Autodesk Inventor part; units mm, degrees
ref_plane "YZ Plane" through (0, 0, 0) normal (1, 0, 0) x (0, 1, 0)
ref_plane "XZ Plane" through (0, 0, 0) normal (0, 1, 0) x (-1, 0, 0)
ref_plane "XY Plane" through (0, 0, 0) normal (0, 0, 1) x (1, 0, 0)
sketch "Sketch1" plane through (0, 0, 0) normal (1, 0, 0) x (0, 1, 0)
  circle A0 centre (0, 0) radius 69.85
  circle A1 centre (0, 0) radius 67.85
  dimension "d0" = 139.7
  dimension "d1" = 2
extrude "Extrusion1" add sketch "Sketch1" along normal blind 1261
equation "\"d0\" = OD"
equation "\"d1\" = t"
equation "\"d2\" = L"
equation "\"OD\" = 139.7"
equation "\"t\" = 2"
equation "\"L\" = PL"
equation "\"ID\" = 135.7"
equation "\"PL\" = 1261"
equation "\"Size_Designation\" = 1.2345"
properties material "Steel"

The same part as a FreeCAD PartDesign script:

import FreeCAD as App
import Part
import Sketcher
from FreeCAD import Vector
Q = App.Units.Quantity

doc = App.newDocument("Part")
body = doc.addObject("PartDesign::Body", "Body")

sketch1 = body.newObject("Sketcher::SketchObject", "Sketch")
sketch1.AttachmentSupport = (doc.getObject("YZ_Plane"), [""])
sketch1.MapMode = "FlatFace"
sketch1.addGeometry(Part.Circle(Vector(0, 0, 0), Vector(0, 0, 1), 70), False)
sketch1.addGeometry(Part.Circle(Vector(0, 0, 0), Vector(0, 0, 1), 68), False)
sketch1.addConstraint(Sketcher.Constraint("Coincident", 0, 3, -1, 1))
sketch1.addConstraint(Sketcher.Constraint("Coincident", 1, 3, -1, 1))
sketch1.addConstraint(Sketcher.Constraint("Diameter", 0, Q("139.7 mm")))
sketch1.addConstraint(Sketcher.Constraint("Diameter", 1, Q("135.7 mm")))
pad1 = body.newObject("PartDesign::Pad", "Pad")
pad1.Profile = sketch1
pad1.Length = 1261

doc.recompute()
